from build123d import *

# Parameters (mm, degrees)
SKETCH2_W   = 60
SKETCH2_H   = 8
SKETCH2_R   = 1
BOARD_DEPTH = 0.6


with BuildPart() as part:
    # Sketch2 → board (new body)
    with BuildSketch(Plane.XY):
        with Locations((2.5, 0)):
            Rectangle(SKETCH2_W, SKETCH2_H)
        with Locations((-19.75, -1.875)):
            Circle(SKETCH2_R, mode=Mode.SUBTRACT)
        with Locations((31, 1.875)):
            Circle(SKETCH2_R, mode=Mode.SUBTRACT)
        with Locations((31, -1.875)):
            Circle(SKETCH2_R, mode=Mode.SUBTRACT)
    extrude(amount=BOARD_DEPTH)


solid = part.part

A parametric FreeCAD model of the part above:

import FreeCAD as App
import Part
import Sketcher

V = App.Vector
Q = App.Units.Quantity


def add_polygon(sketch, points):
    """Adds a closed chain of lines whose ends are joined by coincident constraints."""
    first, n = sketch.GeometryCount, len(points)
    for a, b in zip(points, points[1:] + points[:1]):
        sketch.addGeometry(Part.LineSegment(App.Vector(*a, 0), App.Vector(*b, 0)), False)
    for i in range(n):
        sketch.addConstraint(Sketcher.Constraint("Coincident", first + i, 2, first + (i + 1) % n, 1))

doc = App.newDocument("Part")
body = doc.addObject("PartDesign::Body", "Body")

# Sketch on XY plane
sketch1 = body.newObject("Sketcher::SketchObject", "Sketch")
sketch1.AttachmentSupport = (doc.getObject("XY_Plane"), [""])
sketch1.MapMode = "FlatFace"
add_polygon(sketch1, [(-27.5, 4), (-27.5, -4), (32.5, -4), (32.5, 4)])  # lines 0-3
sketch1.addGeometry(Part.Circle(V(-19.8, -1.9, 0), V(0, 0, 1), 1), False)  # 4
sketch1.addGeometry(Part.Circle(V(31, -1.9, 0), V(0, 0, 1), 1), False)  # 5
sketch1.addGeometry(Part.Circle(V(31, 1.9, 0), V(0, 0, 1), 1), False)  # 6
sketch1.addConstraint(Sketcher.Constraint("Vertical", 0))
sketch1.addConstraint(Sketcher.Constraint("Horizontal", 1))
sketch1.addConstraint(Sketcher.Constraint("Vertical", 2))
sketch1.addConstraint(Sketcher.Constraint("Horizontal", 3))
sketch1.addConstraint(Sketcher.Constraint("Equal", 4, 5))
sketch1.addConstraint(Sketcher.Constraint("Equal", 5, 6))
sketch1.addConstraint(Sketcher.Constraint("Symmetric", 5, 3, 6, 3, -1))
sketch1.addConstraint(Sketcher.Constraint("Horizontal", 4, 3, 5, 3))
sketch1.addConstraint(Sketcher.Constraint("Diameter", 4, Q("2 mm")))
sketch1.addConstraint(Sketcher.Constraint("DistanceX", 1, 1, 1, 2, Q("60 mm")))
sketch1.addConstraint(Sketcher.Constraint("DistanceY", 0, 2, 0, 1, Q("8 mm")))
sketch1.addConstraint(Sketcher.Constraint("DistanceX", -1, 1, 5, 3, Q("31 mm")))
sketch1.addConstraint(Sketcher.Constraint("DistanceY", 0, 2, -1, 1, Q("4 mm")))
sketch1.addConstraint(Sketcher.Constraint("DistanceX", 0, 2, -1, 1, Q("27.5 mm")))
sketch1.addConstraint(Sketcher.Constraint("DistanceX", 4, 3, -1, 1, Q("19.75 mm")))
sketch1.addConstraint(Sketcher.Constraint("DistanceY", 5, 3, 6, 3, Q("3.75 mm")))
pad1 = body.newObject("PartDesign::Pad", "Pad")
pad1.Profile = sketch1
pad1.Length = 0.6

doc.recompute()
